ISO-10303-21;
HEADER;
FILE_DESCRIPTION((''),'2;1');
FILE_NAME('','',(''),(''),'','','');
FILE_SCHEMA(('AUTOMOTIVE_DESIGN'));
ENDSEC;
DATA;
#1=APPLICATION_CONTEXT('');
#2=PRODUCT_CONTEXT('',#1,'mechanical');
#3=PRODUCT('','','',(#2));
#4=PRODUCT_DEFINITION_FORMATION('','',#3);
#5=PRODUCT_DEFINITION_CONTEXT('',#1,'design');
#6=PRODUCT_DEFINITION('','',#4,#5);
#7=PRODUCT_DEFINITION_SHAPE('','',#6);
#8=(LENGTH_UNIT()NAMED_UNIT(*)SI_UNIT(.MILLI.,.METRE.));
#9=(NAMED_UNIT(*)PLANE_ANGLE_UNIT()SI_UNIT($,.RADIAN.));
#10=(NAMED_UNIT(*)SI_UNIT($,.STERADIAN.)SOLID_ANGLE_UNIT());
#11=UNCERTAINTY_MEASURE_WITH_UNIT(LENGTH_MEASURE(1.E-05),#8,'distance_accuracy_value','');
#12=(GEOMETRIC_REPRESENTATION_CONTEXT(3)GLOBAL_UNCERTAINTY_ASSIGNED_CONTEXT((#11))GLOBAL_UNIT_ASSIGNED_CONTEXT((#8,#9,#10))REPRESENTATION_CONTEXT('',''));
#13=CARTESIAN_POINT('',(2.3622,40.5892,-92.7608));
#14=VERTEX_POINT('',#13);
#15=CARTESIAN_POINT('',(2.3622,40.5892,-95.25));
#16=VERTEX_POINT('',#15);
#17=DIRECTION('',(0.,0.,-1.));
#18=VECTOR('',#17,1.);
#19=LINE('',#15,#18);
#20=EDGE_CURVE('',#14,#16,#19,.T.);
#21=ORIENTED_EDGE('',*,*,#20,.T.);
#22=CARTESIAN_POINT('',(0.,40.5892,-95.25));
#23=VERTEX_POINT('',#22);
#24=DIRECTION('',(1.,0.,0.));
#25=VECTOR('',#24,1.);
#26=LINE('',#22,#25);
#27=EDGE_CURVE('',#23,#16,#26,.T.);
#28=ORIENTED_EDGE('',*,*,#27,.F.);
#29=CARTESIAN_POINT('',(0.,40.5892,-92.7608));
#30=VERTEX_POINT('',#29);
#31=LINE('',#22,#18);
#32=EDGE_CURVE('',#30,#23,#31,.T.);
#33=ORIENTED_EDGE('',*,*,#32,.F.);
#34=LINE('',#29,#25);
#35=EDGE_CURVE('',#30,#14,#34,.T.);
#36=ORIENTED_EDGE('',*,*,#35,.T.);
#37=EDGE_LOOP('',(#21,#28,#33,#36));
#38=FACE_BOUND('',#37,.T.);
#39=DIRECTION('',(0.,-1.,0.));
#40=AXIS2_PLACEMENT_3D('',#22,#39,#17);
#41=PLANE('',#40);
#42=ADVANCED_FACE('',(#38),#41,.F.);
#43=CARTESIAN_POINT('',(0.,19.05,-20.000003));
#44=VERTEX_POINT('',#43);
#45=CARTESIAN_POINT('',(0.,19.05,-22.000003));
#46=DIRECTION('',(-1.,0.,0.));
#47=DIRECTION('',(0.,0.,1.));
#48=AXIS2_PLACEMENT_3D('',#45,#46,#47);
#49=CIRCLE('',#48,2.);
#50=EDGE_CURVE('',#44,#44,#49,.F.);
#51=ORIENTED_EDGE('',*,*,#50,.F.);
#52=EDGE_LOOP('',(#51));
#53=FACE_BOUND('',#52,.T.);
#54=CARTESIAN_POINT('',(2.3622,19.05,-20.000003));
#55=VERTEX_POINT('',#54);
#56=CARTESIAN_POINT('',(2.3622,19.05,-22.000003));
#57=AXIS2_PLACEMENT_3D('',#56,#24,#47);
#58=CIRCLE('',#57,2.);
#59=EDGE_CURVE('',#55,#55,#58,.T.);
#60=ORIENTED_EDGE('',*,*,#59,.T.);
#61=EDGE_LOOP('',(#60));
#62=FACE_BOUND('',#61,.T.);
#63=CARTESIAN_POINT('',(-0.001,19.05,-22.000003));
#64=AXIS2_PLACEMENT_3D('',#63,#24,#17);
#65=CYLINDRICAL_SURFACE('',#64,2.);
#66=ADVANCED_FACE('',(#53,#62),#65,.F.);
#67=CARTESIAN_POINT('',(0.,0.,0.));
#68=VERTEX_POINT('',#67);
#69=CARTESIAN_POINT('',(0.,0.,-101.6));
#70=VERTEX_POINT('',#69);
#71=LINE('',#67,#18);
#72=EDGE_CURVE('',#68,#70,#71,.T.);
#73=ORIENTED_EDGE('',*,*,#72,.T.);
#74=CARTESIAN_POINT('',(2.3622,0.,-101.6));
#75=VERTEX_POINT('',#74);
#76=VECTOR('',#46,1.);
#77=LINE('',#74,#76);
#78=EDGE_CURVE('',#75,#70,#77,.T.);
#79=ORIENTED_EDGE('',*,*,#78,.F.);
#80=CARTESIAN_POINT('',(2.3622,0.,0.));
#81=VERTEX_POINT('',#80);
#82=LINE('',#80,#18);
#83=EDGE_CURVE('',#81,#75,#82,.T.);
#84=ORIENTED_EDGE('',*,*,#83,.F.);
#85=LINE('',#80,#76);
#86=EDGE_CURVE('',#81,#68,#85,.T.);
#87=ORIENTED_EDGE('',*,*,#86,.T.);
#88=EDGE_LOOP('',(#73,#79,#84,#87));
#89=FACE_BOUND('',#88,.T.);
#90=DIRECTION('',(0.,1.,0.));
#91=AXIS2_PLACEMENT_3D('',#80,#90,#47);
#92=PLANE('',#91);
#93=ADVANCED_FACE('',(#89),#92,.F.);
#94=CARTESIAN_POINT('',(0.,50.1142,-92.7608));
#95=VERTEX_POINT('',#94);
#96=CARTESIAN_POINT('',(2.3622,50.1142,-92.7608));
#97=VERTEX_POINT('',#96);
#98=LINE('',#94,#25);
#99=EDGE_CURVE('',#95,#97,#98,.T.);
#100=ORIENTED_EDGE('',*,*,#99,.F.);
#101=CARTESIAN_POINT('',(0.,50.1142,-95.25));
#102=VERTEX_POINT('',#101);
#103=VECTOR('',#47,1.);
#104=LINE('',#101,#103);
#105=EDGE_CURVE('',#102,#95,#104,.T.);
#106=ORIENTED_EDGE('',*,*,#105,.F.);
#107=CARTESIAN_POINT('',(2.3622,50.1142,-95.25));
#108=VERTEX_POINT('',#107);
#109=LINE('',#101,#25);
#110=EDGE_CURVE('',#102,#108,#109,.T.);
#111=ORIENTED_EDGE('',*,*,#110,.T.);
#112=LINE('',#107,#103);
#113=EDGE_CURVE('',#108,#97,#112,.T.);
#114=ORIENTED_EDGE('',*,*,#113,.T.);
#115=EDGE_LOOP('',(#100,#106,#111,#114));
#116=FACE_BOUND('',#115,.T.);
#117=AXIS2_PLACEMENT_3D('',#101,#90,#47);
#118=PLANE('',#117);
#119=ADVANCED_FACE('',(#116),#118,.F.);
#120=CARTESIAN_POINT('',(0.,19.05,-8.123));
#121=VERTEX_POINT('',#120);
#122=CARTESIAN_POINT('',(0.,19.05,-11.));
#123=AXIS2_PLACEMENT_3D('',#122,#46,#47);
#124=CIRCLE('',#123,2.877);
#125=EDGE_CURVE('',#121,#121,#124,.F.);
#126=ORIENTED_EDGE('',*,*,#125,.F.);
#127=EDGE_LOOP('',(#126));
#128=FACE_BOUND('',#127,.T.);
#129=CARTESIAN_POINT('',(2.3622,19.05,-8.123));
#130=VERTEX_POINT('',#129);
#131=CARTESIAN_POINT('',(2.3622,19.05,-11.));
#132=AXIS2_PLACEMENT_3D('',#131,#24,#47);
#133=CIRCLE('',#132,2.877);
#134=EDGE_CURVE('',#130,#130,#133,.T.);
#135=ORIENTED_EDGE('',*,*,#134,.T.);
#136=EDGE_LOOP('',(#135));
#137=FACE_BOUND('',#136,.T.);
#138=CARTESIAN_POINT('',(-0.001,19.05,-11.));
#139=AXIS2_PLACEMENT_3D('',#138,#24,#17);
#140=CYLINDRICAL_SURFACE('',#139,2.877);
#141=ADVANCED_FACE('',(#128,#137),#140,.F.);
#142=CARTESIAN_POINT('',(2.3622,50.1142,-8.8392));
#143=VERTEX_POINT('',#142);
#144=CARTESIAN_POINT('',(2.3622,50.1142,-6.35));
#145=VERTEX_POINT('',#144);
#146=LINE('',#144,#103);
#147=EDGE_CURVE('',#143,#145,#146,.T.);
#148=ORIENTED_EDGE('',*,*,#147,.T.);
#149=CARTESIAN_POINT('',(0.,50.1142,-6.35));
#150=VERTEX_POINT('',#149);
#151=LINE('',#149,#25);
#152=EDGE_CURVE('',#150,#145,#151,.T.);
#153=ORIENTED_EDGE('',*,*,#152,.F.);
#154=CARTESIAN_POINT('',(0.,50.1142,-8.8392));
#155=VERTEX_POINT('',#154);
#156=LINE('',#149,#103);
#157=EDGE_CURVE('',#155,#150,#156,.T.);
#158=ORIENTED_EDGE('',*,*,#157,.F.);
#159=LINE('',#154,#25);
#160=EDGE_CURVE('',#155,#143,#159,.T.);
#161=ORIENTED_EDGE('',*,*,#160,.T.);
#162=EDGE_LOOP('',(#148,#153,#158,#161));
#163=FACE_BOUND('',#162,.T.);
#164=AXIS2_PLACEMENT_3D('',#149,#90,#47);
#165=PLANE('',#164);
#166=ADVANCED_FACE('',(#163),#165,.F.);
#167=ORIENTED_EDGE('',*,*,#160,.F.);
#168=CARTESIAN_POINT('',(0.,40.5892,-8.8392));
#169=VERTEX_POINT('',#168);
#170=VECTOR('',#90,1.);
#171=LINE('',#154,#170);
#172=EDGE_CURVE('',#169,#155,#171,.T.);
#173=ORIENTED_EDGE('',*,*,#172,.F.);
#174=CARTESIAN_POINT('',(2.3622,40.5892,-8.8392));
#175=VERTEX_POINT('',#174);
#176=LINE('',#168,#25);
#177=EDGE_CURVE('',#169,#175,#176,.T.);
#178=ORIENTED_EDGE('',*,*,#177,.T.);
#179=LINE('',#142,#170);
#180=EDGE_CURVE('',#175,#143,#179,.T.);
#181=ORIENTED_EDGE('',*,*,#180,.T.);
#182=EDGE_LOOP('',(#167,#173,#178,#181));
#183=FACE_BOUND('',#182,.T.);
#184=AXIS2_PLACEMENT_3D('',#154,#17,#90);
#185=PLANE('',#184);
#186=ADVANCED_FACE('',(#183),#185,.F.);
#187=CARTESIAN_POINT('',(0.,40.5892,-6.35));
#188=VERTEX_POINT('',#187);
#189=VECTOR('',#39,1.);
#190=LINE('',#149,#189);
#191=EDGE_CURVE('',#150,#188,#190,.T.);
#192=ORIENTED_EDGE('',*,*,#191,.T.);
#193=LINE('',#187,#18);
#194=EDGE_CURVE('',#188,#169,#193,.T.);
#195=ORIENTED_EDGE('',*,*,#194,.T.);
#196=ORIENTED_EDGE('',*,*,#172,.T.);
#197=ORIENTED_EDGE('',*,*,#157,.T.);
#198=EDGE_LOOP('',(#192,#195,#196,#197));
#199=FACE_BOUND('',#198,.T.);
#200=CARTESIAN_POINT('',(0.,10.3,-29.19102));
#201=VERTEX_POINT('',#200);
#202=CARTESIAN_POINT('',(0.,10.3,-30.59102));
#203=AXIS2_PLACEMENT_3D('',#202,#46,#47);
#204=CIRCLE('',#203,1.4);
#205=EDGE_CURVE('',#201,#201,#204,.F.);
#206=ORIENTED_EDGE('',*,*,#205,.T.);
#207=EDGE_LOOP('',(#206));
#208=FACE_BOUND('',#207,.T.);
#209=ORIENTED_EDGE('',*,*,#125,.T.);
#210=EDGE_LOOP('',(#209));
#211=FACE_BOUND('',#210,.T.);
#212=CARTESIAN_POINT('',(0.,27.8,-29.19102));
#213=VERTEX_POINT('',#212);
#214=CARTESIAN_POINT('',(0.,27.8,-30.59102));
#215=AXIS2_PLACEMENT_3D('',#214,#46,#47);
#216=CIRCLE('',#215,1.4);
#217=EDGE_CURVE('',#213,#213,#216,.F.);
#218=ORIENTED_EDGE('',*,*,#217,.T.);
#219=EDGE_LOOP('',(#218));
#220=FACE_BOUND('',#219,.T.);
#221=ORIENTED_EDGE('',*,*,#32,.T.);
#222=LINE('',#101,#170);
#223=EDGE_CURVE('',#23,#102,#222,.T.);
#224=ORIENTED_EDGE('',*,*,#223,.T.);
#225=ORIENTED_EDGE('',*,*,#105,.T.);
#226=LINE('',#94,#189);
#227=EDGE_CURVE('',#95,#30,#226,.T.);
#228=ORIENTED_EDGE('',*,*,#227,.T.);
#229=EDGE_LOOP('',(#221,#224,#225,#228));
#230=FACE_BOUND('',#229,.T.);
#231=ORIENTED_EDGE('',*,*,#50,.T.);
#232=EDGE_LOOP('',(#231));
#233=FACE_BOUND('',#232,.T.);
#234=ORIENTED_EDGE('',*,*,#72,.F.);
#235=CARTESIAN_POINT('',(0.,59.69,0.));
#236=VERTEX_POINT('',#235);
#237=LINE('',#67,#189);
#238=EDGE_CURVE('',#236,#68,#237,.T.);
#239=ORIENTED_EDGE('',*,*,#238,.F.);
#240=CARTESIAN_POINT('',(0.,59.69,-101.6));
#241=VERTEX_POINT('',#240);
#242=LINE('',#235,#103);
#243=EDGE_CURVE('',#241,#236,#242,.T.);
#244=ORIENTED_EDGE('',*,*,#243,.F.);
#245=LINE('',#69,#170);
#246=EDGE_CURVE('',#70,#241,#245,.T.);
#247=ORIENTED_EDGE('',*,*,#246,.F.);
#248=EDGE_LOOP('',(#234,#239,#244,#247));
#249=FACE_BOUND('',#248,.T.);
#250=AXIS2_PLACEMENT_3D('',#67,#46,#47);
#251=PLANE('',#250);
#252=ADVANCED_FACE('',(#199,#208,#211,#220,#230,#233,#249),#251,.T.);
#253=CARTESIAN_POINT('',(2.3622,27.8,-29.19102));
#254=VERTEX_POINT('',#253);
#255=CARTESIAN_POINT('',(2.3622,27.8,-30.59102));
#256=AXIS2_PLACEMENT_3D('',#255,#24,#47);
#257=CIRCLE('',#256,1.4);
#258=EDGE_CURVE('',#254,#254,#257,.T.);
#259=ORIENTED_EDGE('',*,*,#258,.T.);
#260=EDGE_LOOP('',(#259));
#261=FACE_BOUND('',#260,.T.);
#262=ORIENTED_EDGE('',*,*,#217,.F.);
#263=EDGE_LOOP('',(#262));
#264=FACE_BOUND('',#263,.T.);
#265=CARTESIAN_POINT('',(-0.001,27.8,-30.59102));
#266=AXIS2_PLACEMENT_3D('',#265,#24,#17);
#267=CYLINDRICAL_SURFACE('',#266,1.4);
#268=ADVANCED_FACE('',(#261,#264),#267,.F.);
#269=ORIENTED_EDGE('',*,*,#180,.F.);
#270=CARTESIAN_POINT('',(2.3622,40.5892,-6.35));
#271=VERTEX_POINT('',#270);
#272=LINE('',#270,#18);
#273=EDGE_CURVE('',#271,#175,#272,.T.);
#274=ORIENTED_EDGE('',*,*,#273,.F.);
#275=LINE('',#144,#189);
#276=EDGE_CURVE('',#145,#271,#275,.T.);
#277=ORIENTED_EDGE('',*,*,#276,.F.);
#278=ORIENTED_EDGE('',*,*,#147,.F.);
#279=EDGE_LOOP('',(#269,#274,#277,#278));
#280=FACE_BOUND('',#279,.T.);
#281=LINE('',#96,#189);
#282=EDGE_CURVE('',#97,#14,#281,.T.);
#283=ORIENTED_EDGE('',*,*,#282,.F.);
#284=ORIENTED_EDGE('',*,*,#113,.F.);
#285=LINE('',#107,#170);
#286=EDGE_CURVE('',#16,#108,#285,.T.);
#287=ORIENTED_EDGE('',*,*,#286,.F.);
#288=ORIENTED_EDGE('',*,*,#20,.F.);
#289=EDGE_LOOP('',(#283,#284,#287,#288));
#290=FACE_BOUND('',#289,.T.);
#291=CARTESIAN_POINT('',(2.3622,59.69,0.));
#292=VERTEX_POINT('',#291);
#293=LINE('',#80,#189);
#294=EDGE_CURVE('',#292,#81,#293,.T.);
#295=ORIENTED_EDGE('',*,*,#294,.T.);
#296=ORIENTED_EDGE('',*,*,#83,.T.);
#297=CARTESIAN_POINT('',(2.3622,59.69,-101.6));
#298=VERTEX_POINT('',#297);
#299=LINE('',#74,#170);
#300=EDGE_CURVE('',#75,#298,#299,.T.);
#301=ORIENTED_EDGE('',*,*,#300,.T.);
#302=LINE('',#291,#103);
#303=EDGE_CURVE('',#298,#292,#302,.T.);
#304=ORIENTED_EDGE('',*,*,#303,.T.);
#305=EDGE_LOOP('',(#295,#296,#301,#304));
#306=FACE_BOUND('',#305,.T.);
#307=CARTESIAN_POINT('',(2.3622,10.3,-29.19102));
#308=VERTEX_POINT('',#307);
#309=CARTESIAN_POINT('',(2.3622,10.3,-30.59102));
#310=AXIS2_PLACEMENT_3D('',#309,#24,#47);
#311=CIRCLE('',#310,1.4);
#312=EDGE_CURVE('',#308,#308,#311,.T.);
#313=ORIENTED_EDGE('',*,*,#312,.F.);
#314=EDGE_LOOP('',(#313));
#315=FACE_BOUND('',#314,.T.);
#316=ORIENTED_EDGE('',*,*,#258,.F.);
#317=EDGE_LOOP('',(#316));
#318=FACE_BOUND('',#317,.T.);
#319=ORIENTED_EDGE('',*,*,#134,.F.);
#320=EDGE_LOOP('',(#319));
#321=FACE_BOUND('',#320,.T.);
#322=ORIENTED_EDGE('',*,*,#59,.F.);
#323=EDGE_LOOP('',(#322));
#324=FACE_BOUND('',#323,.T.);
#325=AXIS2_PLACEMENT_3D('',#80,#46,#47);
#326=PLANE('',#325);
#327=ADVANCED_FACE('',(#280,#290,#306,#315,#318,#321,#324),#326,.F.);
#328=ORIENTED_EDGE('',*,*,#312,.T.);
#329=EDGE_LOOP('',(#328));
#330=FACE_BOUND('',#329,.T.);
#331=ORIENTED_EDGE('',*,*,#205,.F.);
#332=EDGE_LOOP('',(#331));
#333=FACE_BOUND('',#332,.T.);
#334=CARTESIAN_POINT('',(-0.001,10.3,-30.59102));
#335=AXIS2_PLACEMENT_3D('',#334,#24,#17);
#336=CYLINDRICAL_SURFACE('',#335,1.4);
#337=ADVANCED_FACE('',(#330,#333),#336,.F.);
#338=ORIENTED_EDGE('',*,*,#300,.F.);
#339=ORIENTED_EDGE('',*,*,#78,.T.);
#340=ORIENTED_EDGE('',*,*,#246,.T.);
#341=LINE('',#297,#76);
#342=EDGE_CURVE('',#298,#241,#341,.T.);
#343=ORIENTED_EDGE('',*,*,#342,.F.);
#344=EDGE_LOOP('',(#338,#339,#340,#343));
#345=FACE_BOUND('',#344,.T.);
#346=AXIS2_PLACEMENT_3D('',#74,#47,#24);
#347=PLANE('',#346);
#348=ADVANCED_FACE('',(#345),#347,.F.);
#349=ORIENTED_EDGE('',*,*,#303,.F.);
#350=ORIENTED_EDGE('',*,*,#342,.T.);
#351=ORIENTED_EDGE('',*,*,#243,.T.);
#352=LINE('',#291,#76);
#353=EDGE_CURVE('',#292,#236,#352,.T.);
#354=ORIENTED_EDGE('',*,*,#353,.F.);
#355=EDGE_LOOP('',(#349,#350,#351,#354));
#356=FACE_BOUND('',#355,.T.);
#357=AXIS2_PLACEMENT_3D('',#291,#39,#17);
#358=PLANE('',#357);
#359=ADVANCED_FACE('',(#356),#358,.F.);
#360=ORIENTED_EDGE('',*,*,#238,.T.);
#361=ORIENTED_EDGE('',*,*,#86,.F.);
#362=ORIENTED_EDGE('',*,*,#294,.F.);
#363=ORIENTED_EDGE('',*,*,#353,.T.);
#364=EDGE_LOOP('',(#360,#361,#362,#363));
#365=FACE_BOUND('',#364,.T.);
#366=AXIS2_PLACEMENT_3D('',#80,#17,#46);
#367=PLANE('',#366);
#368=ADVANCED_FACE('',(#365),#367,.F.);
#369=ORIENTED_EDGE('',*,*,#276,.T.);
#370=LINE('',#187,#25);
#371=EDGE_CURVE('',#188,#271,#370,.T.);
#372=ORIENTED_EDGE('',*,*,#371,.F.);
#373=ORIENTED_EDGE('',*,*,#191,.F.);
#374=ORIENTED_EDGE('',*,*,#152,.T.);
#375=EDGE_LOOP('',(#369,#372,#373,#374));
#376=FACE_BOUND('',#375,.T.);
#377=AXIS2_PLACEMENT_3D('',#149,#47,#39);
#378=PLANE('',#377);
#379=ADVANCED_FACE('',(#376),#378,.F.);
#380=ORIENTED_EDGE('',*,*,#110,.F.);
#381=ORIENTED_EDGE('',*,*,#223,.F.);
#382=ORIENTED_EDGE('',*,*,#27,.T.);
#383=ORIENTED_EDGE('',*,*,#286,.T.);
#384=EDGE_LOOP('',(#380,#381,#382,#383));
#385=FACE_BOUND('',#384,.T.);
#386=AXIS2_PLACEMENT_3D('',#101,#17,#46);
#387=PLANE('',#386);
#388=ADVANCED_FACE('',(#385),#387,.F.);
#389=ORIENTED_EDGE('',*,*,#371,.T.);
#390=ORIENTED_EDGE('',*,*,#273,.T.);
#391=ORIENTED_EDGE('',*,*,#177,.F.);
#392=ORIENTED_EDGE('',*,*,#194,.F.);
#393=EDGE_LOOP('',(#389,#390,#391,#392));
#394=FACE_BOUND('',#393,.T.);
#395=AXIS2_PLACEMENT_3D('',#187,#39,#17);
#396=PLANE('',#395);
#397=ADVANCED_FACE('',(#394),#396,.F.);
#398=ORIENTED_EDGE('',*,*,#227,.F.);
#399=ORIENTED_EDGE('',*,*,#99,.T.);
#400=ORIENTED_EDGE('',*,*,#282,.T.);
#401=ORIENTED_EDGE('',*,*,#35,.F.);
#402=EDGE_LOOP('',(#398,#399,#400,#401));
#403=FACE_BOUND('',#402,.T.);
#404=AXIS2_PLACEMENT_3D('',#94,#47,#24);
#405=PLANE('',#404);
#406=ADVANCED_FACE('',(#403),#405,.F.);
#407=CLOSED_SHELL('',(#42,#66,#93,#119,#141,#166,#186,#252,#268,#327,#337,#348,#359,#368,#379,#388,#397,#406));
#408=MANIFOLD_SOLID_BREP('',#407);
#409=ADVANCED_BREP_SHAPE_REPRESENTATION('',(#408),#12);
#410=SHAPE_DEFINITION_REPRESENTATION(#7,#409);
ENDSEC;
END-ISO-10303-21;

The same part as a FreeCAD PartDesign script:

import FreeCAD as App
import Part
import Sketcher
from FreeCAD import Vector
Q = App.Units.Quantity

doc = App.newDocument("Part")
body = doc.addObject("PartDesign::Body", "Body")

sketch1 = body.newObject("Sketcher::SketchObject", "Sketch")
sketch1.AttachmentSupport = (doc.getObject("YZ_Plane"), [""])
sketch1.MapMode = "FlatFace"
sketch1.addGeometry([
    Part.LineSegment(Vector(60, 0, 0), Vector(0, 0, 0)),
    Part.LineSegment(Vector(0, 0, 0), Vector(0, -102, 0)),
    Part.LineSegment(Vector(0, -102, 0), Vector(60, -102, 0)),
    Part.LineSegment(Vector(60, -102, 0), Vector(60, 0, 0)),
], False)
sketch1.addConstraint([
    Sketcher.Constraint("Coincident", 0, 2, 1, 1),
    Sketcher.Constraint("Coincident", 1, 2, 2, 1),
    Sketcher.Constraint("Coincident", 2, 2, 3, 1),
    Sketcher.Constraint("Coincident", 3, 2, 0, 1),
    Sketcher.Constraint("Horizontal", 0),
    Sketcher.Constraint("Vertical", 1),
    Sketcher.Constraint("Horizontal", 2),
    Sketcher.Constraint("Vertical", 3),
    Sketcher.Constraint("Coincident", 0, 2, -1, 1),
    Sketcher.Constraint("DistanceY", 1, 2, 1, 1, Q("4 in")),
    Sketcher.Constraint("DistanceX", 0, 2, 0, 1, Q("2.35 in")),
])
pad1 = body.newObject("PartDesign::Pad", "Pad")
pad1.Profile = sketch1
pad1.Length = Q("0.093 in")

sketch2 = body.newObject("Sketcher::SketchObject", "Sketch001")
sketch2.AttachmentSupport = (doc.getObject("YZ_Plane"), [""])
sketch2.MapMode = "FlatFace"
sketch2.AttachmentOffset = App.Placement(Vector(0, 0, 0.093 * 25.4), App.Rotation())
sketch2.addGeometry(Part.Circle(Vector(10.3, -30.6, 0), Vector(0, 0, 1), 1.4), False)
sketch2.addConstraint([
    Sketcher.Constraint("Diameter", 0, Q("2.8 mm")),
    Sketcher.Constraint("DistanceX", -1, 1, 0, 3, Q("10.3 mm")),
    Sketcher.Constraint("DistanceY", 0, 3, -1, 1, Q("30.59102 mm")),
])
pocket1 = body.newObject("PartDesign::Pocket", "Pocket")
pocket1.Profile = sketch2
pocket1.Type = "UpToFirst"

sketch3 = body.newObject("Sketcher::SketchObject", "Sketch002")
sketch3.AttachmentSupport = (doc.getObject("YZ_Plane"), [""])
sketch3.MapMode = "FlatFace"
sketch3.AttachmentOffset = App.Placement(Vector(0, 0, 0.093 * 25.4), App.Rotation())
sketch3.addGeometry(Part.Circle(Vector(27.8, -30.6, 0), Vector(0, 0, 1), 1.4), False)
sketch3.addConstraint([
    Sketcher.Constraint("Diameter", 0, Q("2.8 mm")),
    Sketcher.Constraint("DistanceX", -1, 1, 0, 3, Q("27.8 mm")),
    Sketcher.Constraint("DistanceY", 0, 3, -1, 1, Q("30.59102 mm")),
])
pocket2 = body.newObject("PartDesign::Pocket", "Pocket001")
pocket2.Profile = sketch3
pocket2.Type = "UpToFirst"

sketch4 = body.newObject("Sketcher::SketchObject", "Sketch003")
sketch4.AttachmentSupport = (doc.getObject("YZ_Plane"), [""])
sketch4.MapMode = "FlatFace"
sketch4.AttachmentOffset = App.Placement(Vector(0, 0, 0.093 * 25.4), App.Rotation())
sketch4.addGeometry(Part.Circle(Vector(19.1, -22, 0), Vector(0, 0, 1), 2), False)
sketch4.addConstraint([
    Sketcher.Constraint("Diameter", 0, Q("4 mm")),
    Sketcher.Constraint("DistanceX", -1, 1, 0, 3, Q("0.75 in")),
    Sketcher.Constraint("DistanceY", 0, 3, -1, 1, Q("22.000003 mm")),
])
pocket3 = body.newObject("PartDesign::Pocket", "Pocket002")
pocket3.Profile = sketch4
pocket3.Type = "UpToFirst"

sketch5 = body.newObject("Sketcher::SketchObject", "Sketch004")
sketch5.AttachmentSupport = (doc.getObject("YZ_Plane"), [""])
sketch5.MapMode = "FlatFace"
sketch5.AttachmentOffset = App.Placement(Vector(0, 0, 0.093 * 25.4), App.Rotation())
sketch5.addGeometry(Part.Circle(Vector(19.1, -11, 0), Vector(0, 0, 1), 2.9), False)
sketch5.addConstraint([
    Sketcher.Constraint("Diameter", 0, Q("5.754 mm")),
    Sketcher.Constraint("DistanceX", -1, 1, 0, 3, Q("0.75 in")),
    Sketcher.Constraint("DistanceY", 0, 3, -1, 1, Q("11 mm")),
])
pocket4 = body.newObject("PartDesign::Pocket", "Pocket003")
pocket4.Profile = sketch5
pocket4.Type = "UpToFirst"

sketch6 = body.newObject("Sketcher::SketchObject", "Sketch005")
sketch6.AttachmentSupport = (doc.getObject("YZ_Plane"), [""])
sketch6.MapMode = "FlatFace"
sketch6.AttachmentOffset = App.Placement(Vector(0, 0, 0.093 * 25.4), App.Rotation())
sketch6.addGeometry([
    Part.LineSegment(Vector(50.1, -6.3, 0), Vector(40.6, -6.3, 0)),
    Part.LineSegment(Vector(40.6, -6.3, 0), Vector(40.6, -8.8, 0)),
    Part.LineSegment(Vector(40.6, -8.8, 0), Vector(50.1, -8.8, 0)),
    Part.LineSegment(Vector(50.1, -8.8, 0), Vector(50.1, -6.3, 0)),
    Part.LineSegment(Vector(50.1, -92.8, 0), Vector(40.6, -92.8, 0)),
    Part.LineSegment(Vector(40.6, -92.8, 0), Vector(40.6, -95.2, 0)),
    Part.LineSegment(Vector(40.6, -95.2, 0), Vector(50.1, -95.2, 0)),
    Part.LineSegment(Vector(50.1, -95.2, 0), Vector(50.1, -92.8, 0)),
], False)
sketch6.addConstraint([
    Sketcher.Constraint("Coincident", 0, 2, 1, 1),
    Sketcher.Constraint("Coincident", 1, 2, 2, 1),
    Sketcher.Constraint("Coincident", 2, 2, 3, 1),
    Sketcher.Constraint("Coincident", 3, 2, 0, 1),
    Sketcher.Constraint("Coincident", 4, 2, 5, 1),
    Sketcher.Constraint("Coincident", 5, 2, 6, 1),
    Sketcher.Constraint("Coincident", 6, 2, 7, 1),
    Sketcher.Constraint("Coincident", 7, 2, 4, 1),
    Sketcher.Constraint("Horizontal", 0),
    Sketcher.Constraint("Vertical", 1),
    Sketcher.Constraint("Horizontal", 2),
    Sketcher.Constraint("Vertical", 3),
    Sketcher.Constraint("Horizontal", 4),
    Sketcher.Constraint("Vertical", 5),
    Sketcher.Constraint("Horizontal", 6),
    Sketcher.Constraint("Vertical", 7),
    Sketcher.Constraint("Vertical", 1, 2, 4, 2),
    Sketcher.Constraint("Vertical", 3, 2, 6, 2),
    Sketcher.Constraint("Equal", 3, 5),
    Sketcher.Constraint("DistanceY", 5, 2, 0, 2, Q("3.5 in")),
    Sketcher.Constraint("DistanceX", 0, 2, 0, 1, Q("0.375 in")),
    Sketcher.Constraint("DistanceY", 1, 2, 1, 1, Q("0.098 in")),
    Sketcher.Constraint("DistanceY", 0, 2, -1, 1, Q("0.25 in")),
    Sketcher.Constraint("DistanceX", -1, 1, 0, 2, Q("1.598 in")),
])
pocket5 = body.newObject("PartDesign::Pocket", "Pocket004")
pocket5.Profile = sketch6
pocket5.Type = "ThroughAll"

doc.recompute()
